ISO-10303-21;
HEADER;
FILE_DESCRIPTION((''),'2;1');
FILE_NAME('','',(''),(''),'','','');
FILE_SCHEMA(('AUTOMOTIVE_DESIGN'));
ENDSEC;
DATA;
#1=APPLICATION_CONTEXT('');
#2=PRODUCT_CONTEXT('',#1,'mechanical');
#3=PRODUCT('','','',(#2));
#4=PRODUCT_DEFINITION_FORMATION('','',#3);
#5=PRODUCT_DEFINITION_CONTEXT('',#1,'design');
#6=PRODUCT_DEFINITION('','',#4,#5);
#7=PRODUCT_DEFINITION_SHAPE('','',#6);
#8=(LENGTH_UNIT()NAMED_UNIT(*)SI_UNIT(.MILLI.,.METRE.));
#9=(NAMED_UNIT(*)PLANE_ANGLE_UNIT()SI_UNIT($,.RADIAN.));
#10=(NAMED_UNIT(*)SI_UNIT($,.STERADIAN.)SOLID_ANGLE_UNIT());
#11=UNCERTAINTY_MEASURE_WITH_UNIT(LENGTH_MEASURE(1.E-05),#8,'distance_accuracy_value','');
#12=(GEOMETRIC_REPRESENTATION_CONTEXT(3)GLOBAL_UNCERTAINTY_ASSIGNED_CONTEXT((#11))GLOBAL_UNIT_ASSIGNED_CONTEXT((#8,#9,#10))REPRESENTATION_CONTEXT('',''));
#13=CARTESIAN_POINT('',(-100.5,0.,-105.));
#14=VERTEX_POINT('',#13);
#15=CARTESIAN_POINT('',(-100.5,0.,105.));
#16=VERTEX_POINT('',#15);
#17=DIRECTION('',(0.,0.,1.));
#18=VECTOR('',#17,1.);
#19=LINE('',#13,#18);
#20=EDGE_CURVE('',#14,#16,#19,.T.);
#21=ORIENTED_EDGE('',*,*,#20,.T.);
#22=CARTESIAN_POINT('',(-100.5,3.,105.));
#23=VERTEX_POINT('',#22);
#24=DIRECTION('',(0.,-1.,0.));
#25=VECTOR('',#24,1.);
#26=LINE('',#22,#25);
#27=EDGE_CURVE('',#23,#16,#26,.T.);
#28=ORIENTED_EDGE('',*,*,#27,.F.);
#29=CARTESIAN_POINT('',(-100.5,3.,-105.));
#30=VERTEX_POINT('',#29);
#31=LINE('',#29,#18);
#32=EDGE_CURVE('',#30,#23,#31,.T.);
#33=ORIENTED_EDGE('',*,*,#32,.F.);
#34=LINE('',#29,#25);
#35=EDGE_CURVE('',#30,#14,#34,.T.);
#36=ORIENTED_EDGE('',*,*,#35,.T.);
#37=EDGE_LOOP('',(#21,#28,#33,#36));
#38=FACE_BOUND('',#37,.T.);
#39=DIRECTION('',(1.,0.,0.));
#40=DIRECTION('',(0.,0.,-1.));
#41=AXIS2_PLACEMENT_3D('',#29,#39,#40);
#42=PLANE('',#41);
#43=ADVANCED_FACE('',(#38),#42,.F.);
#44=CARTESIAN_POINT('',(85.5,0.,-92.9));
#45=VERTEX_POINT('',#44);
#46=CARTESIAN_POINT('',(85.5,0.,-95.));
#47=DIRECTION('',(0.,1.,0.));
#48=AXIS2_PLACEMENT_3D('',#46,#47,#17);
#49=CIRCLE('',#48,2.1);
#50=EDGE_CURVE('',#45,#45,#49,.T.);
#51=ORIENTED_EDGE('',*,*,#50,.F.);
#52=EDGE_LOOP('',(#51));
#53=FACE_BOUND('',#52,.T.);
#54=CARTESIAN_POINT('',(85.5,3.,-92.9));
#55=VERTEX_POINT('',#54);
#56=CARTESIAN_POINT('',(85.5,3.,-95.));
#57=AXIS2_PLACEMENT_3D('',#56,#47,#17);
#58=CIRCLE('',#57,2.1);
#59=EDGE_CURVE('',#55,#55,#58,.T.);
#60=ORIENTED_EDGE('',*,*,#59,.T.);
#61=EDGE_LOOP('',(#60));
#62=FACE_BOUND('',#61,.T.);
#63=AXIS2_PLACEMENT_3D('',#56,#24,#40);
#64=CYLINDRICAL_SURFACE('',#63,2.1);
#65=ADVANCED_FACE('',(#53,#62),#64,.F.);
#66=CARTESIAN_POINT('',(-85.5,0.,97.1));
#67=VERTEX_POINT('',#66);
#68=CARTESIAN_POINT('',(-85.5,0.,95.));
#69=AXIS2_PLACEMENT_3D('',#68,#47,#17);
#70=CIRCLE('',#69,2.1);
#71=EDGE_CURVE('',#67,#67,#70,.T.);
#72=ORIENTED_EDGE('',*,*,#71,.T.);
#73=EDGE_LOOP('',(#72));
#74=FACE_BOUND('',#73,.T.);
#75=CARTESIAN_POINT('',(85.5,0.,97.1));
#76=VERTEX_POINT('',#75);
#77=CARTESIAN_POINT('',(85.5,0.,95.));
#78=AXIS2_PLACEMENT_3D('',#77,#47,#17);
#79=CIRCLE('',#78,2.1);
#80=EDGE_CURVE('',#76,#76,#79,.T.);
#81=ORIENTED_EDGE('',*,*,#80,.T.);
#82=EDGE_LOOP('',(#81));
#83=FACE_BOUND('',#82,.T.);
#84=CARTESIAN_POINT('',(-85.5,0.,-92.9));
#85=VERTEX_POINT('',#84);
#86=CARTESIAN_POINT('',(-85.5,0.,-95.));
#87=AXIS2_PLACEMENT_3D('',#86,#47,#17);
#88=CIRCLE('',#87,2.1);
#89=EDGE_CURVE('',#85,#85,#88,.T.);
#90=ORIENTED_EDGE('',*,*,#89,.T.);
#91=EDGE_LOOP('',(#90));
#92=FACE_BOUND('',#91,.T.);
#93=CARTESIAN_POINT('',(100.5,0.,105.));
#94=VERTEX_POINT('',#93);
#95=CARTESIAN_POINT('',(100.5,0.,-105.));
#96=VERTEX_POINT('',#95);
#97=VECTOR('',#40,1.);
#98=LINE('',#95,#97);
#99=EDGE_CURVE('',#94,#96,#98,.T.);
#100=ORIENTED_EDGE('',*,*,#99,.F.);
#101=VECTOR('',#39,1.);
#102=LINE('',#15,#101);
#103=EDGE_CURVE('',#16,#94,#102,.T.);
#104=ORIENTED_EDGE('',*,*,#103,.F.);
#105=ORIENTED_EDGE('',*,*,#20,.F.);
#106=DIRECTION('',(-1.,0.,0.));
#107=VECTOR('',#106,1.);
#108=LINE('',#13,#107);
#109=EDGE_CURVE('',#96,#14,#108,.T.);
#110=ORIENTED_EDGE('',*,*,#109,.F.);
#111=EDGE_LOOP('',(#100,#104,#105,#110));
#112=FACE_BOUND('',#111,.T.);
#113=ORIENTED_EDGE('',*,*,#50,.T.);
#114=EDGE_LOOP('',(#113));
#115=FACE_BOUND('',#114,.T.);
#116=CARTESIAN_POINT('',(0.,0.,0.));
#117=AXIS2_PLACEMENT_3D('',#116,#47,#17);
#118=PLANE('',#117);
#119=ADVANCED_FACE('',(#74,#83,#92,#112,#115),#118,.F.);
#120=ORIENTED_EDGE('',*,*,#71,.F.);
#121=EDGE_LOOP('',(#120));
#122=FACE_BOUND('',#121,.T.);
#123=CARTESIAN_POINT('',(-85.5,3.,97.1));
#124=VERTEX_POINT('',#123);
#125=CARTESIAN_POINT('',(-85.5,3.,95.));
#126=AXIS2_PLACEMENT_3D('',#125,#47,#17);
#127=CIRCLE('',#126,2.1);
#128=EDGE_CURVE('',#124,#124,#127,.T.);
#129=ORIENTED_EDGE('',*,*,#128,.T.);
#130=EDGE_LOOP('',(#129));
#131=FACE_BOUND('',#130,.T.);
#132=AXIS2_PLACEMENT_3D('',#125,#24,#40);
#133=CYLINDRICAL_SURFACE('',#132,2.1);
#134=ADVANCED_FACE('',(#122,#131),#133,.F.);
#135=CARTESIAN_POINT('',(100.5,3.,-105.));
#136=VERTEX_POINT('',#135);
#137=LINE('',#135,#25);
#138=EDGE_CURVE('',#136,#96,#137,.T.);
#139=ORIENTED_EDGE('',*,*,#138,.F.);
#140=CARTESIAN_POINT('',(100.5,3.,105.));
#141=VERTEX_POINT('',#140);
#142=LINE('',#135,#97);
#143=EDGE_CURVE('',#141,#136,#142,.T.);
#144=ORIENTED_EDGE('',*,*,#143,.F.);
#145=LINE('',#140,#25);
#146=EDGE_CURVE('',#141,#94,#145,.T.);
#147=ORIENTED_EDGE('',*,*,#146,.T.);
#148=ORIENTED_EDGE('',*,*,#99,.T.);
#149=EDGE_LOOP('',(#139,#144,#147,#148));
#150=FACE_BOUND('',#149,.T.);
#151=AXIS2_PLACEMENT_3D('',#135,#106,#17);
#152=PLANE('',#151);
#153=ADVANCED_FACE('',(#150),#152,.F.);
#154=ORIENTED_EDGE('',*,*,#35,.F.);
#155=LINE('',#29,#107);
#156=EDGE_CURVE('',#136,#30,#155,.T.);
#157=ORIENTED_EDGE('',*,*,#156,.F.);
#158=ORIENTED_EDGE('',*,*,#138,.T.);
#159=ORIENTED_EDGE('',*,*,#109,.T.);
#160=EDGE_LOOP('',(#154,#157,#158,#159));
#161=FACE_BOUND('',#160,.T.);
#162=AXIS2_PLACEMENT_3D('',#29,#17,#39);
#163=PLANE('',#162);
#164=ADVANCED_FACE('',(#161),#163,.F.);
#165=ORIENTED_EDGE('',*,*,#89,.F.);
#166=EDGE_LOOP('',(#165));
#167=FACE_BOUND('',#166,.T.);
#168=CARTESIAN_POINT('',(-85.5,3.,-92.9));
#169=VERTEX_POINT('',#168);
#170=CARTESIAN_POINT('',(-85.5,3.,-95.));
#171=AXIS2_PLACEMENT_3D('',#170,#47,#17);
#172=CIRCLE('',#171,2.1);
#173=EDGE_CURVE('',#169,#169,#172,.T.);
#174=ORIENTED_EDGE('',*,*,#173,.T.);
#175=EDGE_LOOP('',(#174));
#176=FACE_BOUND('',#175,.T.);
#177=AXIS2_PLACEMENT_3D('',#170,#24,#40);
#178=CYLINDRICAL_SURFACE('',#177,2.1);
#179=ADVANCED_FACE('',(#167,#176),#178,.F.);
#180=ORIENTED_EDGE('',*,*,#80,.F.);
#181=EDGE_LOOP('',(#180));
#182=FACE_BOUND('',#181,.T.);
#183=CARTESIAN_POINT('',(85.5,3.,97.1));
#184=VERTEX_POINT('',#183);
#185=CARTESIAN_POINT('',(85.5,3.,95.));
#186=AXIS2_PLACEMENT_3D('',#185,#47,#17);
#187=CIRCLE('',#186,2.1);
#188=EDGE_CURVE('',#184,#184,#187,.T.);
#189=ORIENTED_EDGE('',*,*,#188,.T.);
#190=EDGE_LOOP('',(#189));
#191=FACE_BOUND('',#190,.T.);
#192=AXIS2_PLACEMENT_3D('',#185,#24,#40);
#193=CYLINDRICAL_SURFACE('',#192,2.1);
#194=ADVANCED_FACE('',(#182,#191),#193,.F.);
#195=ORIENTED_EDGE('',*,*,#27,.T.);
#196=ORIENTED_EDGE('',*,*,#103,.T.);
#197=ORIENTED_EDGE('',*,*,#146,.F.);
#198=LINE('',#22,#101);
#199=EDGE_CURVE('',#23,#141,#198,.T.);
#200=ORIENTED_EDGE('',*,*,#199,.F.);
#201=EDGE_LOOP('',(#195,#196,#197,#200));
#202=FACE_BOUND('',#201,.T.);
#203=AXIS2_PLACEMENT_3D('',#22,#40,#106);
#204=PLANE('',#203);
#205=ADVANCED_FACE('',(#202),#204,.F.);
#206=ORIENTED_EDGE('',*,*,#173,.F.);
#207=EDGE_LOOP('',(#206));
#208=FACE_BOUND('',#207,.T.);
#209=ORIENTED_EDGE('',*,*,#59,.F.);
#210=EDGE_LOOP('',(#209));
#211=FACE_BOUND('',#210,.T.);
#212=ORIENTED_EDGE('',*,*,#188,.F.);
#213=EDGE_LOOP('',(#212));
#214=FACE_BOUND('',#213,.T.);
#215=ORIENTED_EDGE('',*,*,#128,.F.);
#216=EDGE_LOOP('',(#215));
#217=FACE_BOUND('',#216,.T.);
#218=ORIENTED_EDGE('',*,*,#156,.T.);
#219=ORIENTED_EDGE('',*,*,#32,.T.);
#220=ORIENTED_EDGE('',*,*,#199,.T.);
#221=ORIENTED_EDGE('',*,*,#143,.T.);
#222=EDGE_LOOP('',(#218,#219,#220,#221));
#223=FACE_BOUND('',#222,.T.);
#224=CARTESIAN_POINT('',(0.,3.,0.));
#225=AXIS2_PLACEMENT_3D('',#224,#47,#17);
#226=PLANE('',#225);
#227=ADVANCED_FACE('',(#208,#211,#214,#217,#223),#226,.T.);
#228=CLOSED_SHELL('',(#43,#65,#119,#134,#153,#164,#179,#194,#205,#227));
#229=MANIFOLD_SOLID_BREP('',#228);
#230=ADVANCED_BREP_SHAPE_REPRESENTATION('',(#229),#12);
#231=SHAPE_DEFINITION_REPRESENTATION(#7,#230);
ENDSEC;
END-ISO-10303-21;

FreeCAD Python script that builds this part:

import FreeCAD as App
import Part
import Sketcher
Q = App.Units.Quantity


def add_polygon(sketch, points):
    """Adds a closed chain of lines whose ends are joined by coincident constraints."""
    first, n = sketch.GeometryCount, len(points)
    for a, b in zip(points, points[1:] + points[:1]):
        sketch.addGeometry(Part.LineSegment(App.Vector(*a, 0), App.Vector(*b, 0)), False)
    for i in range(n):
        sketch.addConstraint(Sketcher.Constraint("Coincident", first + i, 2, first + (i + 1) % n, 1))

doc = App.newDocument("Part")
params = doc.addObject("Spreadsheet::Sheet", "Params")
for row, (alias, value) in enumerate([
    ("sketch1_diameter", "4.2 mm"),
    ("sketch1_width", "201 mm"),
    ("sketch1_height", "210 mm"),
    ("pad1_length", "3 mm"),
], start=1):
    params.set(f"A{row}", alias)
    params.set(f"B{row}", "=" + value)
    params.setAlias(f"B{row}", alias)

body = doc.addObject("PartDesign::Body", "Body")

# Sketch on XZ plane
sketch1 = doc.addObject("Sketcher::SketchObject", "Sketch")
body.addObject(sketch1)
sketch1.AttachmentSupport = (doc.XZ_Plane, [""])
sketch1.MapMode = "FlatFace"
add_polygon(sketch1, [(-100.5, -105), (-100.5, 105), (100.5, 105), (100.5, -105)])  # lines 0-3
sketch1.addGeometry(Part.Circle(App.Vector(-85.5, 95, 0), App.Vector(0, 0, 1), 2.1), False)  # 4
sketch1.addGeometry(Part.Circle(App.Vector(85.5, 95, 0), App.Vector(0, 0, 1), 2.1), False)  # 5
sketch1.addGeometry(Part.Circle(App.Vector(-85.5, -95, 0), App.Vector(0, 0, 1), 2.1), False)  # 6
sketch1.addGeometry(Part.Circle(App.Vector(85.5, -95, 0), App.Vector(0, 0, 1), 2.1), False)  # 7
sketch1.addConstraint([
    Sketcher.Constraint("Vertical", 0),
    Sketcher.Constraint("Horizontal", 1),
    Sketcher.Constraint("Vertical", 2),
    Sketcher.Constraint("Horizontal", 3),
    Sketcher.Constraint("Equal", 4, 5),
    Sketcher.Constraint("Equal", 5, 6),
    Sketcher.Constraint("Equal", 6, 7),
    Sketcher.Constraint("Symmetric", 5, 3, 6, 3, -1, 1),
    Sketcher.Constraint("Symmetric", 4, 3, 7, 3, -1, 1),
    Sketcher.Constraint("Symmetric", 0, 2, 2, 2, -1, 1),
    Sketcher.Constraint("Symmetric", 4, 3, 5, 3, -2),
    Sketcher.Constraint("Diameter", 4, Q("4.2 mm")),
    Sketcher.Constraint("DistanceX", 1, 1, 1, 2, Q("201 mm")),
    Sketcher.Constraint("DistanceY", 0, 1, 0, 2, Q("210 mm")),
    Sketcher.Constraint("DistanceY", -1, 1, 4, 3, Q("95 mm")),
    Sketcher.Constraint("DistanceX", 4, 3, 5, 3, Q("171 mm")),
])
sketch1.setExpression("Constraints[15]", "Params.sketch1_diameter")
sketch1.setExpression("Constraints[16]", "Params.sketch1_width")
sketch1.setExpression("Constraints[17]", "Params.sketch1_height")
pad1 = doc.addObject("PartDesign::Pad", "Pad")
body.addObject(pad1)
pad1.Profile = sketch1
pad1.setExpression("Length", "Params.pad1_length")
pad1.Reversed = True

doc.recompute()
